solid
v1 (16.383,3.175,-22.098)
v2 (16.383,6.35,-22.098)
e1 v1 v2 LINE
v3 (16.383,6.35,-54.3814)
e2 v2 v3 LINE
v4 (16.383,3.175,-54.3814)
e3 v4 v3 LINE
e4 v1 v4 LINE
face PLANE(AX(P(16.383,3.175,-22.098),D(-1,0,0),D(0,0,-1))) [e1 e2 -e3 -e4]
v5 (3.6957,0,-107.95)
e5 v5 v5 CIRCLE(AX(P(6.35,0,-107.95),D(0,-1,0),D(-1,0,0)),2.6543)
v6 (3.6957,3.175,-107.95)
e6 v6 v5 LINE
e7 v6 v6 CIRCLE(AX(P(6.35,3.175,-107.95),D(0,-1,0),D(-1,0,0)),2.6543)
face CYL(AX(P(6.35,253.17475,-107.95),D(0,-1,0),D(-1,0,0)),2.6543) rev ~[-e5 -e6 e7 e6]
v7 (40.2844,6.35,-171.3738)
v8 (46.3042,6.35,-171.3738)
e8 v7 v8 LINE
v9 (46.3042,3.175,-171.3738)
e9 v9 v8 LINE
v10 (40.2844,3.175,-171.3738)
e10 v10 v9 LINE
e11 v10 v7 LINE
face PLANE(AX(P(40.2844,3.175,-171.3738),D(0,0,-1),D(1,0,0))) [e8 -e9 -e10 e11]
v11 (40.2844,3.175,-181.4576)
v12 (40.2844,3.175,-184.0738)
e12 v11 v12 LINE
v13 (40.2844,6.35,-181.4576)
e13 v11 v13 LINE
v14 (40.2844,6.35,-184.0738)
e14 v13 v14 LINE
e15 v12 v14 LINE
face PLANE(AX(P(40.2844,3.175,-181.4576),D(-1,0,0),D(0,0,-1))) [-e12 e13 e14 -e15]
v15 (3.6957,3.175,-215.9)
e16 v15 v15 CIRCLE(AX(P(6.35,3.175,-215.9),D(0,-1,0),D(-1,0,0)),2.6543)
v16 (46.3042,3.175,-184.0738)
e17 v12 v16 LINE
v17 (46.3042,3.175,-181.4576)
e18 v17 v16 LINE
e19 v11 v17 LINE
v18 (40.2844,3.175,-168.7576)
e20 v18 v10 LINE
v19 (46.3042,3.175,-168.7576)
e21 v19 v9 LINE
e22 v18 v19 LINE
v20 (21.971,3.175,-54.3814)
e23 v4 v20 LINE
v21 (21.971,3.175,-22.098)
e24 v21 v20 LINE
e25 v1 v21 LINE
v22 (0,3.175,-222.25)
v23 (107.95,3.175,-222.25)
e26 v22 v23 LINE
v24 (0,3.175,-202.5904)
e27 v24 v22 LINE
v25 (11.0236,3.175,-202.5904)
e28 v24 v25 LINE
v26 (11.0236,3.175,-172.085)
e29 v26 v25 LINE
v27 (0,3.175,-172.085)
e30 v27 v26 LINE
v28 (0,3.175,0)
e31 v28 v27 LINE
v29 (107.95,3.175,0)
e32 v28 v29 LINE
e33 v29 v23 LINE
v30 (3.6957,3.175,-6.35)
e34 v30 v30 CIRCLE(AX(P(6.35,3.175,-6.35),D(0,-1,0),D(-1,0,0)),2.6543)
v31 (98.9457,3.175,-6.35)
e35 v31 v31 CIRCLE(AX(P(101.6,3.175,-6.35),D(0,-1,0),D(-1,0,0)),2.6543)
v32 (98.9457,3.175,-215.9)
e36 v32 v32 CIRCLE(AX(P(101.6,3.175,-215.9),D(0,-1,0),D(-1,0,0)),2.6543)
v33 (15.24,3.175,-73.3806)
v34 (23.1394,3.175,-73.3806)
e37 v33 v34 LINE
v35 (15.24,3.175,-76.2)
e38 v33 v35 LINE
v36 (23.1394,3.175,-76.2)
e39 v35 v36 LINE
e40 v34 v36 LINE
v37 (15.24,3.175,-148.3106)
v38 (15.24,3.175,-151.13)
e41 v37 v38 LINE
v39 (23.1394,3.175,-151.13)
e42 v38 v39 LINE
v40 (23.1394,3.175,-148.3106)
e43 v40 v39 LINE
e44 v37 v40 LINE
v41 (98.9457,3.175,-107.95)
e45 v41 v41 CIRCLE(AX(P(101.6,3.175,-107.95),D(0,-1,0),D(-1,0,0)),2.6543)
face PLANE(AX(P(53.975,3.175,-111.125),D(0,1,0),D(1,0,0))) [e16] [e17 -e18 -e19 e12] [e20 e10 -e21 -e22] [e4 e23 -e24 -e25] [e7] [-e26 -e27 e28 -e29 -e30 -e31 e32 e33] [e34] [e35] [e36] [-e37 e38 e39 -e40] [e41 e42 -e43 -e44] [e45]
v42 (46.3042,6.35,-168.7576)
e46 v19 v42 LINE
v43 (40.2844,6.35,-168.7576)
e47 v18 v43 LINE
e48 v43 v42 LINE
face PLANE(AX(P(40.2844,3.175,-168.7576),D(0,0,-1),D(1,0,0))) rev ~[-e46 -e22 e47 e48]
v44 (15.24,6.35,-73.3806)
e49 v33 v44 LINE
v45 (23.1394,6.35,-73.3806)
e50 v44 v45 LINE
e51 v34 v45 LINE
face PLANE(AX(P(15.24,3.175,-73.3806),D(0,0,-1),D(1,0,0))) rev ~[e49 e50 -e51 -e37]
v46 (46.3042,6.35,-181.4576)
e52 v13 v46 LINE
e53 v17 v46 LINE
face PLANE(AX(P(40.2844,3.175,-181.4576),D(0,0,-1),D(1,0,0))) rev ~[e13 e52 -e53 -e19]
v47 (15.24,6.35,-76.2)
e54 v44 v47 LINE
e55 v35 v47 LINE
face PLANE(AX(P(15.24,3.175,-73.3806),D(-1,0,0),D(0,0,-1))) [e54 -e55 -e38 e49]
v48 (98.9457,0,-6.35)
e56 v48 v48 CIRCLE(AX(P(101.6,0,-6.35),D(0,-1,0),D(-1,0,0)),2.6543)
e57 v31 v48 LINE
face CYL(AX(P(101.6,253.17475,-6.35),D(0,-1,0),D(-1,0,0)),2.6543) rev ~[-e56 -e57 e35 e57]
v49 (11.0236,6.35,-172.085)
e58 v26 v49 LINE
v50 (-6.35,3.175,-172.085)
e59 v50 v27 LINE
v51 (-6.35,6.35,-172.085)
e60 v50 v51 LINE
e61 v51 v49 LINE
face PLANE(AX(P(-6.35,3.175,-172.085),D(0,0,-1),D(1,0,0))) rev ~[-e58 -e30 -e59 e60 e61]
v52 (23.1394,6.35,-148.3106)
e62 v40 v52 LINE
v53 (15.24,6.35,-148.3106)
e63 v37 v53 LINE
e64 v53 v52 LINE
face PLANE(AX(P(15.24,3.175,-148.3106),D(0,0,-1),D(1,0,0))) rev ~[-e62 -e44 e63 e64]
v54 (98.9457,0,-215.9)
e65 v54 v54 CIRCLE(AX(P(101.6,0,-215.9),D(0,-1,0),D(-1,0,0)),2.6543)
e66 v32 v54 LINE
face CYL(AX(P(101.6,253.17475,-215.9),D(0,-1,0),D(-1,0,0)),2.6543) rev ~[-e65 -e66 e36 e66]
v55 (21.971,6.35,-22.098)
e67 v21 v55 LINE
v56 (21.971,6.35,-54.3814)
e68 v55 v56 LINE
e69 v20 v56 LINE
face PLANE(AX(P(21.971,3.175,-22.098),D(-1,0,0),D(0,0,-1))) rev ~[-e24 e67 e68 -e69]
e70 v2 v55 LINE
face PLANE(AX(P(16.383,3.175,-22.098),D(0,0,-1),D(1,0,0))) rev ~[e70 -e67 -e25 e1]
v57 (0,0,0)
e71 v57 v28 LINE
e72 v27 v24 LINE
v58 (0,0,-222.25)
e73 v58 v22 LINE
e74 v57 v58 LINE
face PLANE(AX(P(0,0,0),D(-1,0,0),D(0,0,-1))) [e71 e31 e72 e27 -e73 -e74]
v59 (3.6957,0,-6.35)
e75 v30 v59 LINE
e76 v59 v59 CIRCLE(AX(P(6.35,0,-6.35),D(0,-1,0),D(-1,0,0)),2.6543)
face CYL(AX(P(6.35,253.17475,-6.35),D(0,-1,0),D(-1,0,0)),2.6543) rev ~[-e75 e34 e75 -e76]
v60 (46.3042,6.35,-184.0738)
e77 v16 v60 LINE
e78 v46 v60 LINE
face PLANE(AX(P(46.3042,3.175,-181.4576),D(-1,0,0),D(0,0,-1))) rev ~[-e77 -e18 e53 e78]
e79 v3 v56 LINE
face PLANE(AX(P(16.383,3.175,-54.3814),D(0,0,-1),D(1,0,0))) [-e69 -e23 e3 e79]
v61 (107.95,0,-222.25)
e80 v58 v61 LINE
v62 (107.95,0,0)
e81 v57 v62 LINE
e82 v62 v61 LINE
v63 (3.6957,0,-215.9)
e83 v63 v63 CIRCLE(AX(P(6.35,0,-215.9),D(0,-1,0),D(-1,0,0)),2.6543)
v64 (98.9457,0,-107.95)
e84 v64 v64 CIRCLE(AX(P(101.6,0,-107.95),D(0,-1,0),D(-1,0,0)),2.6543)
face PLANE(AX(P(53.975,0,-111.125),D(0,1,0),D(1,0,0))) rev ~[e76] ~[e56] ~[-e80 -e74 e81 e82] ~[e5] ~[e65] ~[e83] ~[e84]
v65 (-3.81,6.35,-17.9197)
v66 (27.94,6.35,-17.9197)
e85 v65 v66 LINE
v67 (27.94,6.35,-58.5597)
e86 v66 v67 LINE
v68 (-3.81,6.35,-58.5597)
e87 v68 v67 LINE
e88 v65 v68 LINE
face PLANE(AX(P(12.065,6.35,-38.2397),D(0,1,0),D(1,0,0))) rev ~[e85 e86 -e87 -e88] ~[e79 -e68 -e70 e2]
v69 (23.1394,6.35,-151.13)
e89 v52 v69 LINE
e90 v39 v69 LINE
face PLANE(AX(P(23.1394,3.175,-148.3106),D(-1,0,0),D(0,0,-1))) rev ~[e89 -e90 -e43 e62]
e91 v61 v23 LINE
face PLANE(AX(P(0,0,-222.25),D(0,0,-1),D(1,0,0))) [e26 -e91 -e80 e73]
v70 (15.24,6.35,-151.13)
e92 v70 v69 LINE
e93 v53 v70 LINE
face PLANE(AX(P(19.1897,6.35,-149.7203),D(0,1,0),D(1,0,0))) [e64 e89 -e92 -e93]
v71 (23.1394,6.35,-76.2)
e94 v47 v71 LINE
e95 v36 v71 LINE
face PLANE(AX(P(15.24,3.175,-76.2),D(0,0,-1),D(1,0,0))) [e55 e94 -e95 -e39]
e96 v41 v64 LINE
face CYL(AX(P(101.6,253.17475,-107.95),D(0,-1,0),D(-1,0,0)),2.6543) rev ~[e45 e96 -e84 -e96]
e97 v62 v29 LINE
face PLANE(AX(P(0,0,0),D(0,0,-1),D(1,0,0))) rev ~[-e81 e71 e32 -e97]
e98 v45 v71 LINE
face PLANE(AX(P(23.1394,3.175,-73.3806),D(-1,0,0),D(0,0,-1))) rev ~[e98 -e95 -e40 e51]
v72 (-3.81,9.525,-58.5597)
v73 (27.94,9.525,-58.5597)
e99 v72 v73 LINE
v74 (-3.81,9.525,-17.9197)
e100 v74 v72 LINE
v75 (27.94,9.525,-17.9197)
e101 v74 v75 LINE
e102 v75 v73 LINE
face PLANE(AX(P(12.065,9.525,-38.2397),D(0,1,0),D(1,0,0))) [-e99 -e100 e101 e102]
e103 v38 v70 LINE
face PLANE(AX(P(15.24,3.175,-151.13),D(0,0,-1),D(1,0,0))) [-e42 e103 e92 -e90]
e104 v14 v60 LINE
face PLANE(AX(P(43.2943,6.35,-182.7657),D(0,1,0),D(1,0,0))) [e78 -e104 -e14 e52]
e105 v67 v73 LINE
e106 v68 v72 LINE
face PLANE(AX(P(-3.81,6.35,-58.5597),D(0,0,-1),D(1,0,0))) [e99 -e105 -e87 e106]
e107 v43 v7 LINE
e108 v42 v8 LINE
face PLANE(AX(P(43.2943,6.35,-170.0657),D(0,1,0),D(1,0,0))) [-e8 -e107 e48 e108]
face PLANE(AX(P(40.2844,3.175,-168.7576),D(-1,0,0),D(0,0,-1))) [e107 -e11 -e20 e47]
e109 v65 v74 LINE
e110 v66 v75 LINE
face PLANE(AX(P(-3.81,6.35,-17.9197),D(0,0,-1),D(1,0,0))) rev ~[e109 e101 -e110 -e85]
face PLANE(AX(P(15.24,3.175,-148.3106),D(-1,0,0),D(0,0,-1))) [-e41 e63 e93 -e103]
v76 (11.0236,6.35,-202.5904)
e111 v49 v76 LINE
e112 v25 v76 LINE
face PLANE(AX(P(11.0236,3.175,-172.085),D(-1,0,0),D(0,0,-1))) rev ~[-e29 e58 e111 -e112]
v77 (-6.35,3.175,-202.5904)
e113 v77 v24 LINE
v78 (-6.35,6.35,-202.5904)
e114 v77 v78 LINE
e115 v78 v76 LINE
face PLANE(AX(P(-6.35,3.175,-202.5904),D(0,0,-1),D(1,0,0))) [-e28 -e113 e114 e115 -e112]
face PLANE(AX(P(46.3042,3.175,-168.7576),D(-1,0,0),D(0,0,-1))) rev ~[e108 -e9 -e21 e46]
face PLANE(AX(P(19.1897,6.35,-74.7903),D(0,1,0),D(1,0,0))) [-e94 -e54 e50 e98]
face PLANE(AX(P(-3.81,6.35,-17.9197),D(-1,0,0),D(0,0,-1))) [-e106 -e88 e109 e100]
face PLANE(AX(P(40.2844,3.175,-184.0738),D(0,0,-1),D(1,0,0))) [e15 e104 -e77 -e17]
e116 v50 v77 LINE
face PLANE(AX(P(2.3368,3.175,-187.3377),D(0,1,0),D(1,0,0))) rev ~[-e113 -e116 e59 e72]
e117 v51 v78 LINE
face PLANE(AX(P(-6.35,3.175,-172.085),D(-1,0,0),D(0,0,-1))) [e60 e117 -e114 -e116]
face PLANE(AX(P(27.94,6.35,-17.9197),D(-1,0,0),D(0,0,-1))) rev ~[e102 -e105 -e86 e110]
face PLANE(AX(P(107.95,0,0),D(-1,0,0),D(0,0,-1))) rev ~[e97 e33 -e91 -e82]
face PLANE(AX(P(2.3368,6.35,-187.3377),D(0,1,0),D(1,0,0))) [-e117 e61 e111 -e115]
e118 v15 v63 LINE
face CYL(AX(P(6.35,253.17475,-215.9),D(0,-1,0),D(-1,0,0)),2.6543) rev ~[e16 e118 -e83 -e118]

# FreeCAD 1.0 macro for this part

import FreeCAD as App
import Part
import Sketcher
Q = App.Units.Quantity

doc = App.newDocument("Part")
body = doc.addObject("PartDesign::Body", "Body")

# Sketch on XZ plane
sketch1 = body.newObject("Sketcher::SketchObject", "Sketch")
sketch1.AttachmentSupport = (doc.getObject("XZ_Plane"), [""])
sketch1.MapMode = "FlatFace"
sketch1.addGeometry(Part.LineSegment(App.Vector(0, -222, 0), App.Vector(0, 0, 0)), False)
sketch1.addGeometry(Part.LineSegment(App.Vector(0, 0, 0), App.Vector(108, 0, 0)), False)
sketch1.addGeometry(Part.LineSegment(App.Vector(108, 0, 0), App.Vector(108, -222, 0)), False)
sketch1.addGeometry(Part.LineSegment(App.Vector(108, -222, 0), App.Vector(0, -222, 0)), False)
sketch1.addConstraint(Sketcher.Constraint("Coincident", 0, 2, 1, 1))
sketch1.addConstraint(Sketcher.Constraint("Coincident", 1, 2, 2, 1))
sketch1.addConstraint(Sketcher.Constraint("Coincident", 2, 2, 3, 1))
sketch1.addConstraint(Sketcher.Constraint("Coincident", 3, 2, 0, 1))
sketch1.addConstraint(Sketcher.Constraint("Vertical", 0))
sketch1.addConstraint(Sketcher.Constraint("Horizontal", 1))
sketch1.addConstraint(Sketcher.Constraint("Vertical", 2))
sketch1.addConstraint(Sketcher.Constraint("Horizontal", 3))
sketch1.addConstraint(Sketcher.Constraint("Coincident", 0, 2, -1, 1))
sketch1.addConstraint(Sketcher.Constraint("DistanceX", 1, 1, 1, 2, Q("4.25 in")))
sketch1.addConstraint(Sketcher.Constraint("DistanceY", 0, 1, 0, 2, Q("8.75 in")))
pad1 = body.newObject("PartDesign::Pad", "Pad")
pad1.Profile = sketch1
pad1.Length = Q("0.125 in")
pad1.Reversed = True

# Sketch on XZ plane
sketch2 = body.newObject("Sketcher::SketchObject", "Sketch001")
sketch2.AttachmentSupport = (doc.getObject("XZ_Plane"), [""])
sketch2.MapMode = "FlatFace"
sketch2.AttachmentOffset = App.Placement(App.Vector(0, 0, -0.125 * 25.4), App.Rotation())
sketch2.addGeometry(Part.LineSegment(App.Vector(-6.3, -202.6, 0), App.Vector(-6.3, -172.1, 0)), False)
sketch2.addGeometry(Part.LineSegment(App.Vector(-6.3, -172.1, 0), App.Vector(11, -172.1, 0)), False)
sketch2.addGeometry(Part.LineSegment(App.Vector(11, -172.1, 0), App.Vector(11, -202.6, 0)), False)
sketch2.addGeometry(Part.LineSegment(App.Vector(11, -202.6, 0), App.Vector(-6.3, -202.6, 0)), False)
sketch2.addGeometry(Part.LineSegment(App.Vector(15.2, -151.1, 0), App.Vector(15.2, -148.3, 0)), False)
sketch2.addGeometry(Part.LineSegment(App.Vector(15.2, -148.3, 0), App.Vector(23.1, -148.3, 0)), False)
sketch2.addGeometry(Part.LineSegment(App.Vector(23.1, -148.3, 0), App.Vector(23.1, -151.1, 0)), False)
sketch2.addGeometry(Part.LineSegment(App.Vector(23.1, -151.1, 0), App.Vector(15.2, -151.1, 0)), False)
sketch2.addGeometry(Part.LineSegment(App.Vector(15.2, -76.2, 0), App.Vector(15.2, -73.4, 0)), False)
sketch2.addGeometry(Part.LineSegment(App.Vector(15.2, -73.4, 0), App.Vector(23.1, -73.4, 0)), False)
sketch2.addGeometry(Part.LineSegment(App.Vector(23.1, -73.4, 0), App.Vector(23.1, -76.2, 0)), False)
sketch2.addGeometry(Part.LineSegment(App.Vector(23.1, -76.2, 0), App.Vector(15.2, -76.2, 0)), False)
sketch2.addGeometry(Part.LineSegment(App.Vector(16.4, -54.4, 0), App.Vector(16.4, -22.1, 0)), False)
sketch2.addGeometry(Part.LineSegment(App.Vector(16.4, -22.1, 0), App.Vector(22, -22.1, 0)), False)
sketch2.addGeometry(Part.LineSegment(App.Vector(22, -22.1, 0), App.Vector(22, -54.4, 0)), False)
sketch2.addGeometry(Part.LineSegment(App.Vector(22, -54.4, 0), App.Vector(16.4, -54.4, 0)), False)
sketch2.addGeometry(Part.LineSegment(App.Vector(40.3, -184.1, 0), App.Vector(40.3, -181.5, 0)), False)
sketch2.addGeometry(Part.LineSegment(App.Vector(40.3, -181.5, 0), App.Vector(46.3, -181.5, 0)), False)
sketch2.addGeometry(Part.LineSegment(App.Vector(46.3, -181.5, 0), App.Vector(46.3, -184.1, 0)), False)
sketch2.addGeometry(Part.LineSegment(App.Vector(46.3, -184.1, 0), App.Vector(40.3, -184.1, 0)), False)
sketch2.addGeometry(Part.LineSegment(App.Vector(40.3, -171.4, 0), App.Vector(40.3, -168.8, 0)), False)
sketch2.addGeometry(Part.LineSegment(App.Vector(40.3, -168.8, 0), App.Vector(46.3, -168.8, 0)), False)
sketch2.addGeometry(Part.LineSegment(App.Vector(46.3, -168.8, 0), App.Vector(46.3, -171.4, 0)), False)
sketch2.addGeometry(Part.LineSegment(App.Vector(46.3, -171.4, 0), App.Vector(40.3, -171.4, 0)), False)
sketch2.addConstraint(Sketcher.Constraint("Coincident", 0, 2, 1, 1))
sketch2.addConstraint(Sketcher.Constraint("Coincident", 1, 2, 2, 1))
sketch2.addConstraint(Sketcher.Constraint("Coincident", 2, 2, 3, 1))
sketch2.addConstraint(Sketcher.Constraint("Coincident", 3, 2, 0, 1))
sketch2.addConstraint(Sketcher.Constraint("Coincident", 4, 2, 5, 1))
sketch2.addConstraint(Sketcher.Constraint("Coincident", 5, 2, 6, 1))
sketch2.addConstraint(Sketcher.Constraint("Coincident", 6, 2, 7, 1))
sketch2.addConstraint(Sketcher.Constraint("Coincident", 7, 2, 4, 1))
sketch2.addConstraint(Sketcher.Constraint("Coincident", 8, 2, 9, 1))
sketch2.addConstraint(Sketcher.Constraint("Coincident", 9, 2, 10, 1))
sketch2.addConstraint(Sketcher.Constraint("Coincident", 10, 2, 11, 1))
sketch2.addConstraint(Sketcher.Constraint("Coincident", 11, 2, 8, 1))
sketch2.addConstraint(Sketcher.Constraint("Coincident", 12, 2, 13, 1))
sketch2.addConstraint(Sketcher.Constraint("Coincident", 13, 2, 14, 1))
sketch2.addConstraint(Sketcher.Constraint("Coincident", 14, 2, 15, 1))
sketch2.addConstraint(Sketcher.Constraint("Coincident", 15, 2, 12, 1))
sketch2.addConstraint(Sketcher.Constraint("Coincident", 16, 2, 17, 1))
sketch2.addConstraint(Sketcher.Constraint("Coincident", 17, 2, 18, 1))
sketch2.addConstraint(Sketcher.Constraint("Coincident", 18, 2, 19, 1))
sketch2.addConstraint(Sketcher.Constraint("Coincident", 19, 2, 16, 1))
sketch2.addConstraint(Sketcher.Constraint("Coincident", 20, 2, 21, 1))
sketch2.addConstraint(Sketcher.Constraint("Coincident", 21, 2, 22, 1))
sketch2.addConstraint(Sketcher.Constraint("Coincident", 22, 2, 23, 1))
sketch2.addConstraint(Sketcher.Constraint("Coincident", 23, 2, 20, 1))
sketch2.addConstraint(Sketcher.Constraint("Vertical", 0))
sketch2.addConstraint(Sketcher.Constraint("Horizontal", 1))
sketch2.addConstraint(Sketcher.Constraint("Vertical", 2))
sketch2.addConstraint(Sketcher.Constraint("Horizontal", 3))
sketch2.addConstraint(Sketcher.Constraint("Vertical", 4))
sketch2.addConstraint(Sketcher.Constraint("Horizontal", 5))
sketch2.addConstraint(Sketcher.Constraint("Vertical", 6))
sketch2.addConstraint(Sketcher.Constraint("Horizontal", 7))
sketch2.addConstraint(Sketcher.Constraint("Vertical", 8))
sketch2.addConstraint(Sketcher.Constraint("Horizontal", 9))
sketch2.addConstraint(Sketcher.Constraint("Vertical", 10))
sketch2.addConstraint(Sketcher.Constraint("Horizontal", 11))
sketch2.addConstraint(Sketcher.Constraint("Vertical", 12))
sketch2.addConstraint(Sketcher.Constraint("Horizontal", 13))
sketch2.addConstraint(Sketcher.Constraint("Vertical", 14))
sketch2.addConstraint(Sketcher.Constraint("Horizontal", 15))
sketch2.addConstraint(Sketcher.Constraint("Vertical", 16))
sketch2.addConstraint(Sketcher.Constraint("Horizontal", 17))
sketch2.addConstraint(Sketcher.Constraint("Vertical", 18))
sketch2.addConstraint(Sketcher.Constraint("Horizontal", 19))
sketch2.addConstraint(Sketcher.Constraint("Vertical", 20))
sketch2.addConstraint(Sketcher.Constraint("Horizontal", 21))
sketch2.addConstraint(Sketcher.Constraint("Vertical", 22))
sketch2.addConstraint(Sketcher.Constraint("Horizontal", 23))
sketch2.addConstraint(Sketcher.Constraint("Vertical", 7, 2, 8, 2))
sketch2.addConstraint(Sketcher.Constraint("Vertical", 6, 2, 9, 2))
sketch2.addConstraint(Sketcher.Constraint("Vertical", 19, 2, 20, 2))
sketch2.addConstraint(Sketcher.Constraint("Vertical", 18, 2, 21, 2))
sketch2.addConstraint(Sketcher.Constraint("Equal", 6, 8))
sketch2.addConstraint(Sketcher.Constraint("Equal", 18, 20))
sketch2.addConstraint(Sketcher.Constraint("DistanceY", 10, 2, -1, 1, Q("3 in")))
sketch2.addConstraint(Sketcher.Constraint("DistanceX", 13, 1, 13, 2, Q("0.22 in")))
sketch2.addConstraint(Sketcher.Constraint("DistanceX", -1, 1, 4, 2, Q("0.6 in")))
sketch2.addConstraint(Sketcher.Constraint("DistanceY", 16, 2, 20, 2, Q("0.5 in")))
sketch2.addConstraint(Sketcher.Constraint("DistanceX", 1, 1, 1, 2, Q("0.684 in")))
sketch2.addConstraint(Sketcher.Constraint("DistanceX", 5, 1, 5, 2, Q("0.311 in")))
sketch2.addConstraint(Sketcher.Constraint("DistanceX", 17, 1, 17, 2, Q("0.237 in")))
sketch2.addConstraint(Sketcher.Constraint("DistanceY", 0, 1, 0, 2, Q("1.201 in")))
sketch2.addConstraint(Sketcher.Constraint("DistanceY", 4, 1, 4, 2, Q("0.111 in")))
sketch2.addConstraint(Sketcher.Constraint("DistanceY", 12, 1, 12, 2, Q("1.271 in")))
sketch2.addConstraint(Sketcher.Constraint("DistanceY", 16, 1, 16, 2, Q("0.103 in")))
sketch2.addConstraint(Sketcher.Constraint("DistanceX", 0, 2, -1, 1, Q("0.25 in")))
sketch2.addConstraint(Sketcher.Constraint("DistanceY", 6, 2, -1, 1, Q("5.95 in")))
sketch2.addConstraint(Sketcher.Constraint("DistanceY", 12, 2, -1, 1, Q("0.87 in")))
sketch2.addConstraint(Sketcher.Constraint("DistanceY", 0, 2, -1, 1, Q("6.775 in")))
sketch2.addConstraint(Sketcher.Constraint("DistanceX", -1, 1, 12, 2, Q("0.645 in")))
sketch2.addConstraint(Sketcher.Constraint("DistanceX", -1, 1, 16, 2, Q("1.586 in")))
sketch2.addConstraint(Sketcher.Constraint("DistanceY", 16, 2, -1, 1, Q("7.144 in")))
pad2 = body.newObject("PartDesign::Pad", "Pad001")
pad2.Profile = sketch2
pad2.Length = Q("0.125 in")
pad2.Reversed = True

# Sketch on XZ plane
sketch3 = body.newObject("Sketcher::SketchObject", "Sketch002")
sketch3.AttachmentSupport = (doc.getObject("XZ_Plane"), [""])
sketch3.MapMode = "FlatFace"
sketch3.AttachmentOffset = App.Placement(App.Vector(0, 0, -0.125 * 25.4), App.Rotation())
sketch3.addGeometry(Part.Circle(App.Vector(101.6, -215.9, 0), App.Vector(0, 0, 1), 2.7), False)
sketch3.addGeometry(Part.Circle(App.Vector(101.6, -6.3, 0), App.Vector(0, 0, 1), 2.7), False)
sketch3.addGeometry(Part.Circle(App.Vector(6.3, -6.3, 0), App.Vector(0, 0, 1), 2.7), False)
sketch3.addGeometry(Part.Circle(App.Vector(6.3, -215.9, 0), App.Vector(0, 0, 1), 2.7), False)
sketch3.addGeometry(Part.Circle(App.Vector(6.3, -108, 0), App.Vector(0, 0, 1), 2.7), False)
sketch3.addGeometry(Part.Circle(App.Vector(101.6, -108, 0), App.Vector(0, 0, 1), 2.7), False)
sketch3.addConstraint(Sketcher.Constraint("Equal", 0, 1))
sketch3.addConstraint(Sketcher.Constraint("Equal", 1, 2))
sketch3.addConstraint(Sketcher.Constraint("Equal", 2, 3))
sketch3.addConstraint(Sketcher.Constraint("Equal", 3, 4))
sketch3.addConstraint(Sketcher.Constraint("Equal", 4, 5))
sketch3.addConstraint(Sketcher.Constraint("Horizontal", 1, 3, 2, 3))
sketch3.addConstraint(Sketcher.Constraint("Horizontal", 0, 3, 3, 3))
sketch3.addConstraint(Sketcher.Constraint("Horizontal", 4, 3, 5, 3))
sketch3.addConstraint(Sketcher.Constraint("Vertical", 0, 3, 1, 3))
sketch3.addConstraint(Sketcher.Constraint("Vertical", 2, 3, 3, 3))
sketch3.addConstraint(Sketcher.Constraint("Vertical", 3, 3, 4, 3))
sketch3.addConstraint(Sketcher.Constraint("Vertical", 1, 3, 5, 3))
sketch3.addConstraint(Sketcher.Constraint("Diameter", 0, Q("0.209 in")))
sketch3.addConstraint(Sketcher.Constraint("DistanceX", -1, 1, 0, 3, Q("4 in")))
sketch3.addConstraint(Sketcher.Constraint("DistanceY", 4, 3, 2, 3, Q("4 in")))
sketch3.addConstraint(Sketcher.Constraint("DistanceY", 0, 3, -1, 1, Q("8.5 in")))
sketch3.addConstraint(Sketcher.Constraint("DistanceY", 1, 3, -1, 1, Q("0.25 in")))
sketch3.addConstraint(Sketcher.Constraint("DistanceX", -1, 1, 2, 3, Q("0.25 in")))
doc.recompute()
hole = body.newObject("PartDesign::Hole", "Hole")
hole.Profile = sketch3
hole.ThreadType = "None"
hole.Diameter = Q("0.209 in")
hole.DepthType = "ThroughAll"
hole.Reversed = True

# Sketch on XZ plane
sketch4 = body.newObject("Sketcher::SketchObject", "Sketch003")
sketch4.AttachmentSupport = (doc.getObject("XZ_Plane"), [""])
sketch4.MapMode = "FlatFace"
sketch4.AttachmentOffset = App.Placement(App.Vector(0, 0, -0.25 * 25.4), App.Rotation())
sketch4.addGeometry(Part.LineSegment(App.Vector(-4, -59, 0), App.Vector(-4, -18, 0)), False)
sketch4.addGeometry(Part.LineSegment(App.Vector(-4, -18, 0), App.Vector(28, -18, 0)), False)
sketch4.addGeometry(Part.LineSegment(App.Vector(28, -18, 0), App.Vector(28, -59, 0)), False)
sketch4.addGeometry(Part.LineSegment(App.Vector(28, -59, 0), App.Vector(-4, -59, 0)), False)
sketch4.addConstraint(Sketcher.Constraint("Coincident", 0, 2, 1, 1))
sketch4.addConstraint(Sketcher.Constraint("Coincident", 1, 2, 2, 1))
sketch4.addConstraint(Sketcher.Constraint("Coincident", 2, 2, 3, 1))
sketch4.addConstraint(Sketcher.Constraint("Coincident", 3, 2, 0, 1))
sketch4.addConstraint(Sketcher.Constraint("Vertical", 0))
sketch4.addConstraint(Sketcher.Constraint("Horizontal", 1))
sketch4.addConstraint(Sketcher.Constraint("Vertical", 2))
sketch4.addConstraint(Sketcher.Constraint("Horizontal", 3))
sketch4.addConstraint(Sketcher.Constraint("DistanceY", 0, 1, 0, 2, Q("1.6 in")))
sketch4.addConstraint(Sketcher.Constraint("DistanceX", 1, 1, 1, 2, Q("1.25 in")))
sketch4.addConstraint(Sketcher.Constraint("DistanceX", -1, 1, 1, 2, Q("1.1 in")))
sketch4.addConstraint(Sketcher.Constraint("DistanceY", 0, 2, -1, 1, Q("0.7055 in")))
pad3 = body.newObject("PartDesign::Pad", "Pad002")
pad3.Profile = sketch4
pad3.Length = Q("0.125 in")
pad3.Reversed = True

doc.recompute()
